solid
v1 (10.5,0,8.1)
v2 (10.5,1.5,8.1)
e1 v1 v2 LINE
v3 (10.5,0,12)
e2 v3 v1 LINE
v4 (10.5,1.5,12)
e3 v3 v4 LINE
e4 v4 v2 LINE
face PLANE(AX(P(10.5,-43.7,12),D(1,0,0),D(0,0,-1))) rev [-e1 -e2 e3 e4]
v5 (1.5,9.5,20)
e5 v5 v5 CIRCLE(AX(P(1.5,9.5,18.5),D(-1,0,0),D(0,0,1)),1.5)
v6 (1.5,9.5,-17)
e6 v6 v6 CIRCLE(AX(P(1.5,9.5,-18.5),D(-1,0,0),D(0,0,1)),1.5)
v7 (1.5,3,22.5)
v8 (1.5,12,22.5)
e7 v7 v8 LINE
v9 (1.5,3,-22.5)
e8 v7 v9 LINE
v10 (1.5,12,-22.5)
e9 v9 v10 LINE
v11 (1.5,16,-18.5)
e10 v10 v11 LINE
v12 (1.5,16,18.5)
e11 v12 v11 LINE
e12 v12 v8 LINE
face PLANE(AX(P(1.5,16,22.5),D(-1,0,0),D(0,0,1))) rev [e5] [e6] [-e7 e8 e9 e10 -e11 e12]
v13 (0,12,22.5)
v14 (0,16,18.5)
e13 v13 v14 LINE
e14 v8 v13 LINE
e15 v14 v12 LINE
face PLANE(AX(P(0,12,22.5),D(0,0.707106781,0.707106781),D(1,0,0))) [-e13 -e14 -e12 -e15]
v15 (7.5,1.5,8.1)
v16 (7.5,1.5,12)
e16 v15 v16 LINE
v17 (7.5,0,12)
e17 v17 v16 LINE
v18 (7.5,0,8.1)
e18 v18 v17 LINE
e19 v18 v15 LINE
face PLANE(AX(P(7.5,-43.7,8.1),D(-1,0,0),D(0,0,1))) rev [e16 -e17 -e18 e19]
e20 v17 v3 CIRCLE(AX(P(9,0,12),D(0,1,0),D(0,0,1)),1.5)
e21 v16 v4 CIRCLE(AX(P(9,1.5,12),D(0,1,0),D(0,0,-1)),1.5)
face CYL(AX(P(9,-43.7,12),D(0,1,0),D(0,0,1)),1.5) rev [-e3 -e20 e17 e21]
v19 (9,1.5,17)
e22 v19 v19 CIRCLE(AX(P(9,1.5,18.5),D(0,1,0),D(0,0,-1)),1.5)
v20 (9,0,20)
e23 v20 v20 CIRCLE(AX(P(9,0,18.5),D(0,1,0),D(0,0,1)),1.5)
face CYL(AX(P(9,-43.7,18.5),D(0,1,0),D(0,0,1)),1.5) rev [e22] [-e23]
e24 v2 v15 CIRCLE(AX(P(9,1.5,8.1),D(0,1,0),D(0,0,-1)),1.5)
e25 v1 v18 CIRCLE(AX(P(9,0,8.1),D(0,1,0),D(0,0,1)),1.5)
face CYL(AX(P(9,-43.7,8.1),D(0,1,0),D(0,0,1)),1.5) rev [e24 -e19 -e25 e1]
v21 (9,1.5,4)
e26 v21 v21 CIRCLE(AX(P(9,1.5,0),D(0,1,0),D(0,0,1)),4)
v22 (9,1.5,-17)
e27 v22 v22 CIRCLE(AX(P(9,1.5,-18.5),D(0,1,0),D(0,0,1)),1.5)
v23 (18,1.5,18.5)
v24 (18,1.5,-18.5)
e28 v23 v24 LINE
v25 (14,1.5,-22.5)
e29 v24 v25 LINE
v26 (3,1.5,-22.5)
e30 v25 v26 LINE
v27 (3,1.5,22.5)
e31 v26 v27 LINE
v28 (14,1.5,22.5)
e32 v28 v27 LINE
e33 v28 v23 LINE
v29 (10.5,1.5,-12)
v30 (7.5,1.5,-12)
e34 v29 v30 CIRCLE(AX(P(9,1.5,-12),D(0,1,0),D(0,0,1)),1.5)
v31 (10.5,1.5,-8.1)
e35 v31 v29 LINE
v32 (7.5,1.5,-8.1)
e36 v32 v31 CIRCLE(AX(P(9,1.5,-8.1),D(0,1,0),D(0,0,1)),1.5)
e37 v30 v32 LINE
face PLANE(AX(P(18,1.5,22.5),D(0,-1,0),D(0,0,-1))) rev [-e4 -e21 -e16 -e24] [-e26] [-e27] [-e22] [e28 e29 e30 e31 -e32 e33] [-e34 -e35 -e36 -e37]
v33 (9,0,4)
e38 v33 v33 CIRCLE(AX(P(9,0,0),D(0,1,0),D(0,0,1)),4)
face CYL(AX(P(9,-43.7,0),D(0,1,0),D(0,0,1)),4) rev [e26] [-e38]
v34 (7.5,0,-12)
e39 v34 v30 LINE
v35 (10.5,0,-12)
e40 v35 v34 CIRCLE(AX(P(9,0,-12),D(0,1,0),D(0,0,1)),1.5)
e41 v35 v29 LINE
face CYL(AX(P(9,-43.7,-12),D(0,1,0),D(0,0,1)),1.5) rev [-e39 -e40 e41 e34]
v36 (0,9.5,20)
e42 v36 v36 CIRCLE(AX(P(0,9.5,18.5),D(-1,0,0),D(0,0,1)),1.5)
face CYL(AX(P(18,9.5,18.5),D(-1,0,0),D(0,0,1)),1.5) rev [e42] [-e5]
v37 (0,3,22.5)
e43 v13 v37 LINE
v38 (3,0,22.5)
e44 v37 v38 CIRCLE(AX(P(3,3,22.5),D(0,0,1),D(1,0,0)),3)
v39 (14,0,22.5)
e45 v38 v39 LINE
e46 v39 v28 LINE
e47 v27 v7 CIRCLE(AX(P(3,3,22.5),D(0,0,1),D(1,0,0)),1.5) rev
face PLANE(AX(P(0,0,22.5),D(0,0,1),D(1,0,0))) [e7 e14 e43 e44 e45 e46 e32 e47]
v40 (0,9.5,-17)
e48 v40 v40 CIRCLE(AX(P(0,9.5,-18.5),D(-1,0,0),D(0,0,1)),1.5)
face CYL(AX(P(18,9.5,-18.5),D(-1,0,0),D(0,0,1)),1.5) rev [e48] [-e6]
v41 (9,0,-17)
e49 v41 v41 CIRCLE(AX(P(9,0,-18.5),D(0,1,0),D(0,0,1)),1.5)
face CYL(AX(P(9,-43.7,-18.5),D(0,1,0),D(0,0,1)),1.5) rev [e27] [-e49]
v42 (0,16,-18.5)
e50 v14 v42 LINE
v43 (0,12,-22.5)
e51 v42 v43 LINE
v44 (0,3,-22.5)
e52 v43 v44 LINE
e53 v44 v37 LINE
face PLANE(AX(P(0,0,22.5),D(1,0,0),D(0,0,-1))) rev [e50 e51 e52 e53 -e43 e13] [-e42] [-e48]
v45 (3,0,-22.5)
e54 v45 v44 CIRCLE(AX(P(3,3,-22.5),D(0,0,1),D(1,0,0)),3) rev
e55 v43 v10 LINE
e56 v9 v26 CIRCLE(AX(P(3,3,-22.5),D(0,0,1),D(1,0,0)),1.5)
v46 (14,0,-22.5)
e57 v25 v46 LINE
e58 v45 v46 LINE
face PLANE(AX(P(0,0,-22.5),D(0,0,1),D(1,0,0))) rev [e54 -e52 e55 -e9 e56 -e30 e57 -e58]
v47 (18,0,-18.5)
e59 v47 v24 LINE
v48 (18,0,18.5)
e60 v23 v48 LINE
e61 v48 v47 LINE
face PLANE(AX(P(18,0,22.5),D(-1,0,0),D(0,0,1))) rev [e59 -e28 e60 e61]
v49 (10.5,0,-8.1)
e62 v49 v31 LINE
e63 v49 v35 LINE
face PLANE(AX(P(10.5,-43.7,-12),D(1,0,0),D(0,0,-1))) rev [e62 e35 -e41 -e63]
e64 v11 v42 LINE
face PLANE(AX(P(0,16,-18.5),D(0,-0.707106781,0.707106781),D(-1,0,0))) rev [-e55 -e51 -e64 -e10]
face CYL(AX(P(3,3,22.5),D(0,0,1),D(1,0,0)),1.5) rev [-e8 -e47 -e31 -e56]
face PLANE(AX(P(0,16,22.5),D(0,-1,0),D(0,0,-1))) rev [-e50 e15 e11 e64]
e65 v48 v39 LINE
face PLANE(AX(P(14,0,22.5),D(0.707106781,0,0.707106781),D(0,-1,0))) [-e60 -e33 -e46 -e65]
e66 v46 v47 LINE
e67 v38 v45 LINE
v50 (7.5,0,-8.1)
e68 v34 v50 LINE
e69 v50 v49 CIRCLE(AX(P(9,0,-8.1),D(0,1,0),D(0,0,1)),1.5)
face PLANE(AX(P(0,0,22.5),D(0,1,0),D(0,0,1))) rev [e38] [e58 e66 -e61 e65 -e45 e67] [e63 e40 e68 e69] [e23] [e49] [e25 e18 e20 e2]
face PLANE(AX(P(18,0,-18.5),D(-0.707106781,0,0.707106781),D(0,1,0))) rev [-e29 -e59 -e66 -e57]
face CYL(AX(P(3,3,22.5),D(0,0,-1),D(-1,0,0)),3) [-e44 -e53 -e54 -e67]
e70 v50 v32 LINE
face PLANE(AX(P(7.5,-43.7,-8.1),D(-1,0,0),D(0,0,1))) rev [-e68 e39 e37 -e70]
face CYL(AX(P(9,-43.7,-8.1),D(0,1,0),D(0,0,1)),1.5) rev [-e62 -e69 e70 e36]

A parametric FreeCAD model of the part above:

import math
import FreeCAD as App
import Part
import Sketcher

V = App.Vector


def edges_at(feature, points):
    """Names of the edges that pass closest to the given points."""
    edges = feature.Shape.Edges
    near = lambda p: min(range(len(edges)), key=lambda i: edges[i].distToShape(Part.Vertex(*p))[0])
    return sorted({f"Edge{near(p) + 1}" for p in points})

doc = App.newDocument("Part")
params = doc.addObject("Spreadsheet::Sheet", "Params")
for row, (alias, value) in enumerate([
    ("sketch1_width", "18 mm"),
    ("sketch1_height", "16 mm"),
    ("sketch1_width2", "16.5 mm"),
    ("pad1_length", "45 mm"),
    ("sketch2_diameter", "8 mm"),
    ("sketch2_diameter2", "3 mm"),
    ("sketch2_height", "3.9 mm"),
    ("pocket1_length", "45.2 mm"),
    ("chamfer_size", "4 mm"),
    ("fillet_radius", "1.5 mm"),
    ("fillet2_radius", "3 mm"),
    ("sketch3_diameter", "3 mm"),
], start=1):
    params.set(f"A{row}", alias)
    params.set(f"B{row}", "=" + value)
    params.setAlias(f"B{row}", alias)

body = doc.addObject("PartDesign::Body", "Body")

# Sketch on XY plane
sketch1 = doc.addObject("Sketcher::SketchObject", "Sketch")
body.addObject(sketch1)
sketch1.AttachmentSupport = (doc.XY_Plane, [""])
sketch1.MapMode = "FlatFace"
sketch1.addGeometry([
    Part.LineSegment(V(0, 16, 0), V(0, 0, 0)),  # 0
    Part.LineSegment(V(0, 0, 0), V(18, 0, 0)),  # 1
    Part.LineSegment(V(18, 0, 0), V(18, 1.5, 0)),  # 2
    Part.LineSegment(V(18, 1.5, 0), V(1.5, 1.5, 0)),  # 3
    Part.LineSegment(V(1.5, 1.5, 0), V(1.5, 16, 0)),  # 4
    Part.LineSegment(V(1.5, 16, 0), V(0, 16, 0)),  # 5
], False)
sketch1.addConstraint([
    Sketcher.Constraint("Coincident", 0, 2, 1, 1),
    Sketcher.Constraint("Coincident", 1, 2, 2, 1),
    Sketcher.Constraint("Coincident", 2, 2, 3, 1),
    Sketcher.Constraint("Coincident", 3, 2, 4, 1),
    Sketcher.Constraint("Coincident", 4, 2, 5, 1),
    Sketcher.Constraint("Coincident", 5, 2, 0, 1),
    Sketcher.Constraint("Vertical", 0),
    Sketcher.Constraint("Horizontal", 1),
    Sketcher.Constraint("Vertical", 2),
    Sketcher.Constraint("Horizontal", 3),
    Sketcher.Constraint("Vertical", 4),
    Sketcher.Constraint("Horizontal", 5),
    Sketcher.Constraint("Coincident", 0, 2, -1, 1),
    Sketcher.Constraint("Equal", 5, 2),
    Sketcher.Constraint("DistanceX", 1, 1, 1, 2, 18.0),
    Sketcher.Constraint("DistanceY", 0, 2, 0, 1, 16.0),
    Sketcher.Constraint("DistanceX", 3, 2, 3, 1, 16.5),
])
sketch1.setExpression("Constraints[14]", "Params.sketch1_width")
sketch1.setExpression("Constraints[15]", "Params.sketch1_height")
sketch1.setExpression("Constraints[16]", "Params.sketch1_width2")
pad1 = doc.addObject("PartDesign::Pad", "Pad")
body.addObject(pad1)
pad1.Profile = sketch1
pad1.setExpression("Length", "Params.pad1_length")
pad1.Midplane = True

# Sketch on XZ plane
sketch2 = doc.addObject("Sketcher::SketchObject", "Sketch001")
body.addObject(sketch2)
sketch2.AttachmentSupport = (doc.XZ_Plane, [""])
sketch2.MapMode = "FlatFace"
sketch2.AttachmentOffset = App.Placement(V(0, 0, -1.5), App.Rotation())
sketch2.addGeometry([
    Part.Circle(V(9, 0, 0), V(0, 0, 1), 4),  # 0
    Part.Circle(V(9, -18.5, 0), V(0, 0, 1), 1.5),  # 1
    Part.Circle(V(9, 18.5, 0), V(0, 0, 1), 1.5),  # 2
    Part.LineSegment(V(7.5, -12, 0), V(7.5, -8.1, 0)),  # 3
    Part.ArcOfCircle(Part.Circle(V(9, -8.1, 0), V(0, 0, 1), 1.5), math.radians(0), math.radians(180)),  # 4
    Part.LineSegment(V(10.5, -8.1, 0), V(10.5, -12, 0)),  # 5
    Part.ArcOfCircle(Part.Circle(V(9, -12, 0), V(0, 0, 1), 1.5), math.radians(180), math.radians(360)),  # 6
    Part.LineSegment(V(10.5, 12, 0), V(10.5, 8.1, 0)),  # 7
    Part.ArcOfCircle(Part.Circle(V(9, 8.1, 0), V(0, 0, 1), 1.5), math.radians(180), math.radians(360)),  # 8
    Part.LineSegment(V(7.5, 8.1, 0), V(7.5, 12, 0)),  # 9
    Part.ArcOfCircle(Part.Circle(V(9, 12, 0), V(0, 0, 1), 1.5), math.radians(0), math.radians(180)),  # 10
], False)
sketch2.addConstraint([
    Sketcher.Constraint("Tangent", 3, 2, 4, 2),
    Sketcher.Constraint("Tangent", 4, 1, 5, 1),
    Sketcher.Constraint("Tangent", 5, 2, 6, 2),
    Sketcher.Constraint("Tangent", 6, 1, 3, 1),
    Sketcher.Constraint("Tangent", 7, 2, 8, 2),
    Sketcher.Constraint("Tangent", 8, 1, 9, 1),
    Sketcher.Constraint("Tangent", 9, 2, 10, 2),
    Sketcher.Constraint("Tangent", 10, 1, 7, 1),
    Sketcher.Constraint("Vertical", 3),
    Sketcher.Constraint("Vertical", 5),
    Sketcher.Constraint("Vertical", 7),
    Sketcher.Constraint("Vertical", 9),
    Sketcher.Constraint("Equal", 1, 2),
    Sketcher.Constraint("Equal", 2, 4),
    Sketcher.Constraint("Equal", 6, 8),
    Sketcher.Constraint("Symmetric", 1, 3, 2, 3, -1),
    Sketcher.Constraint("Symmetric", 4, 3, 8, 3, -1),
    Sketcher.Constraint("PointOnObject", 0, 3, -1),
    Sketcher.Constraint("Vertical", 0, 3, 1, 3),
    Sketcher.Constraint("Vertical", 2, 3, 4, 3),
    Sketcher.Constraint("Equal", 5, 7),
    Sketcher.Constraint("Diameter", 0, 8.0),
    Sketcher.Constraint("Diameter", 1, 3.0),
    Sketcher.Constraint("DistanceY", 3, 1, 3, 2, 3.9),
    Sketcher.Constraint("DistanceX", -1, 1, 0, 3, 9.0),
    Sketcher.Constraint("DistanceY", 6, 3, -1, 1, 12.0),
    Sketcher.Constraint("DistanceY", 1, 3, 2, 3, 37.0),
])
sketch2.setExpression("Constraints[21]", "Params.sketch2_diameter")
sketch2.setExpression("Constraints[22]", "Params.sketch2_diameter2")
sketch2.setExpression("Constraints[23]", "Params.sketch2_height")
pocket1 = doc.addObject("PartDesign::Pocket", "Pocket")
body.addObject(pocket1)
pocket1.Profile = sketch2
pocket1.setExpression("Length", "Params.pocket1_length")
pocket1.Reversed = True
doc.recompute()

chamfer = doc.addObject("PartDesign::Chamfer", "Chamfer")
body.addObject(chamfer)
chamfer.Base = (pocket1, edges_at(pocket1, [
    (0.75, 16, 22.5),
    (0.75, 16, -22.5),
    (18, 0.75, 22.5),
    (18, 0.75, -22.5),
]))
chamfer.setExpression("Size", "Params.chamfer_size")
doc.recompute()

fillet = doc.addObject("PartDesign::Fillet", "Fillet")
body.addObject(fillet)
fillet.Base = (chamfer, edges_at(chamfer, [(1.5, 1.5, 0)]))
fillet.setExpression("Radius", "Params.fillet_radius")
doc.recompute()

fillet2 = doc.addObject("PartDesign::Fillet", "Fillet001")
body.addObject(fillet2)
fillet2.Base = (fillet, edges_at(fillet, [(0, 0, 0)]))
fillet2.setExpression("Radius", "Params.fillet2_radius")

# Sketch on YZ plane
sketch3 = doc.addObject("Sketcher::SketchObject", "Sketch002")
body.addObject(sketch3)
sketch3.AttachmentSupport = (doc.YZ_Plane, [""])
sketch3.MapMode = "FlatFace"
sketch3.addGeometry([
    Part.Circle(V(9.5, -18.5, 0), V(0, 0, 1), 1.5),
    Part.Circle(V(9.5, 18.5, 0), V(0, 0, 1), 1.5),
], False)
sketch3.addConstraint([
    Sketcher.Constraint("Equal", 0, 1),
    Sketcher.Constraint("Symmetric", 0, 3, 1, 3, -1),
    Sketcher.Constraint("Diameter", 0, 3.0),
    Sketcher.Constraint("DistanceY", 0, 3, 1, 3, 37.0),
    Sketcher.Constraint("DistanceX", -1, 1, 0, 3, 9.5),
])
sketch3.setExpression("Constraints[2]", "Params.sketch3_diameter")
pocket2 = doc.addObject("PartDesign::Pocket", "Pocket001")
body.addObject(pocket2)
pocket2.Profile = sketch3
pocket2.Type = "ThroughAll"
pocket2.Reversed = True

doc.recompute()
